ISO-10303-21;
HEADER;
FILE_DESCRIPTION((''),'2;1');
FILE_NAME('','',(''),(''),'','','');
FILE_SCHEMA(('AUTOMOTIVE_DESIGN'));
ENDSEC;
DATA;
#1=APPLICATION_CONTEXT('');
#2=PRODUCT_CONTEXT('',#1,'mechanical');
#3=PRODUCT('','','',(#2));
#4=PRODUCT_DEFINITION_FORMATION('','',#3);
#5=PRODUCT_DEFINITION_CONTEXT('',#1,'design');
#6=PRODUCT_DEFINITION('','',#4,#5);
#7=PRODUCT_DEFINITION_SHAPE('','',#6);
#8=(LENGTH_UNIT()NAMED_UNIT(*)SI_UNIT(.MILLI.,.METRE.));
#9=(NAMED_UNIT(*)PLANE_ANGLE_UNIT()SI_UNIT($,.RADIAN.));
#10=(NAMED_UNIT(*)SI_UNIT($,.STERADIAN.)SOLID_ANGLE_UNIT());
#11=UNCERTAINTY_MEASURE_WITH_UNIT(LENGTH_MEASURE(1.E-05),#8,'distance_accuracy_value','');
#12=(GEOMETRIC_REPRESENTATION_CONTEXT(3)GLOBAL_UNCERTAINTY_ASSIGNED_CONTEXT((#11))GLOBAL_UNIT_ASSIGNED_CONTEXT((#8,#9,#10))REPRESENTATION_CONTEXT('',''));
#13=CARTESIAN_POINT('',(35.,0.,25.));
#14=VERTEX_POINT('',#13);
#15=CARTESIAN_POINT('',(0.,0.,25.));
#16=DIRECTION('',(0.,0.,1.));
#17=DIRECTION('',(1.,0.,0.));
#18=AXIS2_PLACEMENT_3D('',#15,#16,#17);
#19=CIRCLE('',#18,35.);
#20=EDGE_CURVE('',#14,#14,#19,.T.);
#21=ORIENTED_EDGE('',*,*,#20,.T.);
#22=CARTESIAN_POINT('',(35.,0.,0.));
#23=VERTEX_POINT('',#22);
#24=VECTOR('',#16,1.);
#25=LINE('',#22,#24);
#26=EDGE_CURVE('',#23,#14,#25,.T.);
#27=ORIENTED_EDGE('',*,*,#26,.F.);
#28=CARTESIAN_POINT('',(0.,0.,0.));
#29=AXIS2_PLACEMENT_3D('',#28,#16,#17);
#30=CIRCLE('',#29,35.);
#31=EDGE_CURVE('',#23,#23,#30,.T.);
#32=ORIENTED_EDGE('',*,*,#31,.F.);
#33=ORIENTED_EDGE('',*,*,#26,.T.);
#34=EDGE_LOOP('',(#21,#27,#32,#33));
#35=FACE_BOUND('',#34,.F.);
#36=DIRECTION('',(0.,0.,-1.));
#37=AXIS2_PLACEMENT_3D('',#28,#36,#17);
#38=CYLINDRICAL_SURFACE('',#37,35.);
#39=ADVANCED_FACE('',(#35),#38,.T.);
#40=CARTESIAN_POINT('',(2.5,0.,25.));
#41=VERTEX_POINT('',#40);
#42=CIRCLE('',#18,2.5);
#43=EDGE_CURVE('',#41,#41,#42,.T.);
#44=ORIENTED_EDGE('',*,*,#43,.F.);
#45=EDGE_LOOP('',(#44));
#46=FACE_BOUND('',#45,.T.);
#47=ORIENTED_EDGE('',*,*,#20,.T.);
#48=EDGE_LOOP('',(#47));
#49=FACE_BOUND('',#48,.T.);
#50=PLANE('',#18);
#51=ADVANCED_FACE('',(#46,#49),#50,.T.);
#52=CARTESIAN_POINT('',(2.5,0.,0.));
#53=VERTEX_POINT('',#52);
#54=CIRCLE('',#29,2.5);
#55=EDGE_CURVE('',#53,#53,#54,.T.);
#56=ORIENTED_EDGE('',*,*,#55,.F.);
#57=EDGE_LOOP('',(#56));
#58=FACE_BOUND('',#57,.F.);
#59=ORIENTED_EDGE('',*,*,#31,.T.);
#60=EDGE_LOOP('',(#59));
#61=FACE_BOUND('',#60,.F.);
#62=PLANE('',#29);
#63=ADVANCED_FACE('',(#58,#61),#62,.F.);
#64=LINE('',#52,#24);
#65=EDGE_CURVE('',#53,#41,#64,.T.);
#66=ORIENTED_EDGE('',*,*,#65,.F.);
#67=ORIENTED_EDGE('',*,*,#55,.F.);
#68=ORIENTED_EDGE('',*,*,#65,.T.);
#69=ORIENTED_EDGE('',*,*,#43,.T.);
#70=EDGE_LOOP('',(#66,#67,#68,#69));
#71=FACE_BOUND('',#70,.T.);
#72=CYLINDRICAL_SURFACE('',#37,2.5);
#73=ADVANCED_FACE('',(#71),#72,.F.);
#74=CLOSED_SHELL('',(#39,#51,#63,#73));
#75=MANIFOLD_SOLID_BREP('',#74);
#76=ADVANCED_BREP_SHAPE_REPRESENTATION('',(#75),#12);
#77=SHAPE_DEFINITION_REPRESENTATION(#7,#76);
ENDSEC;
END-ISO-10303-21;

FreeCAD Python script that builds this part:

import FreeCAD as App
import Part
import Sketcher

V = App.Vector

doc = App.newDocument("Part")
body = doc.addObject("PartDesign::Body", "Body")

# Sketch on XY plane
sketch1 = doc.addObject("Sketcher::SketchObject", "Sketch")
body.addObject(sketch1)
sketch1.AttachmentSupport = (doc.XY_Plane, [""])
sketch1.MapMode = "FlatFace"
sketch1.addGeometry([
    Part.Circle(V(0, 0, 0), V(0, 0, 1), 35),
    Part.Circle(V(0, 0, 0), V(0, 0, 1), 2.5),
], False)
sketch1.addConstraint([
    Sketcher.Constraint("Coincident", 0, 3, -1, 1),
    Sketcher.Constraint("Coincident", 1, 3, -1, 1),
    Sketcher.Constraint("Diameter", 0, 70.0),
    Sketcher.Constraint("Diameter", 1, 5.0),
])
pad1 = doc.addObject("PartDesign::Pad", "Pad")
body.addObject(pad1)
pad1.Profile = sketch1
pad1.Length = 25

doc.recompute()
